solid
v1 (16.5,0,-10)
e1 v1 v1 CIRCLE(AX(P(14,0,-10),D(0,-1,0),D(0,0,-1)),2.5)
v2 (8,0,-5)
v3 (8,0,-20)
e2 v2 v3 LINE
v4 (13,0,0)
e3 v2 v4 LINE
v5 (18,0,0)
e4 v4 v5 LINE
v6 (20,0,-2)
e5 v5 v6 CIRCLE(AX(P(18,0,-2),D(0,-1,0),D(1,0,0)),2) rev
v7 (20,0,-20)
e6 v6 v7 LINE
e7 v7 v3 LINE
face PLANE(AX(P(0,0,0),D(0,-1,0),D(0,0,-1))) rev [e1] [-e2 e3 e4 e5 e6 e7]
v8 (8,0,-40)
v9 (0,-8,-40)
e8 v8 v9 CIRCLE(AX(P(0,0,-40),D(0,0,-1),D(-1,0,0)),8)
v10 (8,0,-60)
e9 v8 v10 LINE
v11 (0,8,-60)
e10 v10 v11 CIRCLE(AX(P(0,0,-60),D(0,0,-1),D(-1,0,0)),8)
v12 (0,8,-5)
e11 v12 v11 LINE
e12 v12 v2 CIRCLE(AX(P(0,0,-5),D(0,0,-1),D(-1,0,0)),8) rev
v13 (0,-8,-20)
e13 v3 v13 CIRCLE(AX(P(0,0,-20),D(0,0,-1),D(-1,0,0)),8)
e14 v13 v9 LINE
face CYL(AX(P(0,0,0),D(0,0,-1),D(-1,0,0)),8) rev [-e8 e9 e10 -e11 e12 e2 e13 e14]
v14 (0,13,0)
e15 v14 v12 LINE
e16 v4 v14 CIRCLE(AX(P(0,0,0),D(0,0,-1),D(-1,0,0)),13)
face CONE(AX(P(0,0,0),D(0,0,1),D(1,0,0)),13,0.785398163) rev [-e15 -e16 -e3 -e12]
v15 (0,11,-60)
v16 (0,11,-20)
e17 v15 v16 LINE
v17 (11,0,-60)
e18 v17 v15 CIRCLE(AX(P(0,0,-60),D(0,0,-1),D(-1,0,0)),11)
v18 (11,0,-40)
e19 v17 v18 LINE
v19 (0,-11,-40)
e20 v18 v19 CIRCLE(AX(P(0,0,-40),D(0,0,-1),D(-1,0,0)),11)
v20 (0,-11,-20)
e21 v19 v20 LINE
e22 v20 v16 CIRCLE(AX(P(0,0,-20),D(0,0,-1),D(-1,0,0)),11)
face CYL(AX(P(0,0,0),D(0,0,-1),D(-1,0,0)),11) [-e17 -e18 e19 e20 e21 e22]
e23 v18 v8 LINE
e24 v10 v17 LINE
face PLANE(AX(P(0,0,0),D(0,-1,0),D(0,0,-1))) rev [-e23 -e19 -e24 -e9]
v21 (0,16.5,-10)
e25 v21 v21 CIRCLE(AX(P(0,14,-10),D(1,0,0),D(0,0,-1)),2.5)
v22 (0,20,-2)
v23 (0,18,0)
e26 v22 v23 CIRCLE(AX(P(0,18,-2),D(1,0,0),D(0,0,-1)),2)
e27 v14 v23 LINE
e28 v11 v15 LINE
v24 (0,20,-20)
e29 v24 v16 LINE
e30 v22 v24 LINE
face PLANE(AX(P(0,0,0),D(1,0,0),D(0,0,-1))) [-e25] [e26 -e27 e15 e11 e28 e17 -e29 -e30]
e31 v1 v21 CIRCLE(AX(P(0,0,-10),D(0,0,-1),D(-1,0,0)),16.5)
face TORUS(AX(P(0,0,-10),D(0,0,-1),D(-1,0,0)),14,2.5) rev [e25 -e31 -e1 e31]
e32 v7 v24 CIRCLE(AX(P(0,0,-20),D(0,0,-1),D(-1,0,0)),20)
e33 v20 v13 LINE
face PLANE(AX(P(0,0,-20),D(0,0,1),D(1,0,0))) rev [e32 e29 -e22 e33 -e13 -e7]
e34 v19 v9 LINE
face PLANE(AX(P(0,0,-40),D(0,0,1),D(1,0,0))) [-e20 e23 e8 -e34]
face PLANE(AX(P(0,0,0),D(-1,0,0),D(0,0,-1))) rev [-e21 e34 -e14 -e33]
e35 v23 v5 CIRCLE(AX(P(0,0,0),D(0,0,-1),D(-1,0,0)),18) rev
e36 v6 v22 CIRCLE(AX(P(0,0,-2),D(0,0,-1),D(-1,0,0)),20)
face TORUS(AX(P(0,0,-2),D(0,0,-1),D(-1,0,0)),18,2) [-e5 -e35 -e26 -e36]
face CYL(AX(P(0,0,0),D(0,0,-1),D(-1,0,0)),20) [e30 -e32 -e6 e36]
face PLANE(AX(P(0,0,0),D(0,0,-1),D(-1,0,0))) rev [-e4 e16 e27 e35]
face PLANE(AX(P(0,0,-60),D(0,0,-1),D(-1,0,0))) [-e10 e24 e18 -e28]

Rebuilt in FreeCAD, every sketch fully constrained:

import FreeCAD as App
import Part
import Sketcher


def edges_at(feature, points):
    """Names of the edges that pass closest to the given points."""
    edges = feature.Shape.Edges
    near = lambda p: min(range(len(edges)), key=lambda i: edges[i].distToShape(Part.Vertex(*p))[0])
    return sorted({f"Edge{near(p) + 1}" for p in points})


def add_polygon(sketch, points):
    """Adds a closed chain of lines whose ends are joined by coincident constraints."""
    first, n = sketch.GeometryCount, len(points)
    for a, b in zip(points, points[1:] + points[:1]):
        sketch.addGeometry(Part.LineSegment(App.Vector(*a, 0), App.Vector(*b, 0)), False)
    for i in range(n):
        sketch.addConstraint(Sketcher.Constraint("Coincident", first + i, 2, first + (i + 1) % n, 1))

doc = App.newDocument("Part")
body = doc.addObject("PartDesign::Body", "Body")
body.AllowCompound = True

# Sketch on YZ plane
sketch1 = body.newObject("Sketcher::SketchObject", "Sketch")
sketch1.AttachmentSupport = (doc.getObject("YZ_Plane"), [""])
sketch1.MapMode = "FlatFace"
add_polygon(sketch1, [(8, -20), (20, -20), (20, 0), (8, 0)])  # lines 0-3
sketch1.addGeometry(Part.Circle(App.Vector(14, -10, 0), App.Vector(0, 0, 1), 2.5), False)  # 4
add_polygon(sketch1, [(11, -40), (8, -40), (8, -60), (11, -60)])  # lines 5-8
sketch1.addConstraint(Sketcher.Constraint("Horizontal", 0))
sketch1.addConstraint(Sketcher.Constraint("Vertical", 1))
sketch1.addConstraint(Sketcher.Constraint("Horizontal", 2))
sketch1.addConstraint(Sketcher.Constraint("Vertical", 3))
sketch1.addConstraint(Sketcher.Constraint("Horizontal", 5))
sketch1.addConstraint(Sketcher.Constraint("Vertical", 6))
sketch1.addConstraint(Sketcher.Constraint("Horizontal", 7))
sketch1.addConstraint(Sketcher.Constraint("Vertical", 8))
sketch1.addConstraint(Sketcher.Constraint("PointOnObject", 1, 2, -1))
sketch1.addConstraint(Sketcher.Constraint("Vertical", 3, 2, 5, 2))
sketch1.addConstraint(Sketcher.Constraint("Equal", 3, 6))
sketch1.addConstraint(Sketcher.Constraint("Diameter", 4, 5.0))
sketch1.addConstraint(Sketcher.Constraint("DistanceX", 0, 1, 0, 2, 12.0))
sketch1.addConstraint(Sketcher.Constraint("DistanceX", 5, 2, 5, 1, 3.0))
sketch1.addConstraint(Sketcher.Constraint("DistanceY", 1, 1, 1, 2, 20.0))
sketch1.addConstraint(Sketcher.Constraint("DistanceX", -1, 1, 4, 3, 14.0))
sketch1.addConstraint(Sketcher.Constraint("DistanceY", 4, 3, -1, 1, 10.0))
sketch1.addConstraint(Sketcher.Constraint("DistanceX", -1, 1, 0, 2, 20.0))
sketch1.addConstraint(Sketcher.Constraint("DistanceY", 5, 2, -1, 1, 40.0))
revolution = body.newObject("PartDesign::Revolution", "Revolution")
revolution.Profile = sketch1
revolution.ReferenceAxis = (sketch1, ["V_Axis"])
revolution.Angle = 270

# Sketch on YZ plane
sketch2 = body.newObject("Sketcher::SketchObject", "Sketch001")
sketch2.AttachmentSupport = (doc.getObject("YZ_Plane"), [""])
sketch2.MapMode = "FlatFace"
add_polygon(sketch2, [(11, -20), (8, -20), (8, -60), (11, -60)])  # lines 0-3
sketch2.addConstraint(Sketcher.Constraint("Horizontal", 0))
sketch2.addConstraint(Sketcher.Constraint("Vertical", 1))
sketch2.addConstraint(Sketcher.Constraint("Horizontal", 2))
sketch2.addConstraint(Sketcher.Constraint("Vertical", 3))
sketch2.addConstraint(Sketcher.Constraint("DistanceX", 0, 2, 0, 1, 3.0))
sketch2.addConstraint(Sketcher.Constraint("DistanceY", 1, 2, 1, 1, 40.0))
sketch2.addConstraint(Sketcher.Constraint("DistanceX", -1, 1, 0, 2, 8.0))
sketch2.addConstraint(Sketcher.Constraint("DistanceY", 0, 2, -1, 1, 20.0))
revolution2 = body.newObject("PartDesign::Revolution", "Revolution001")
revolution2.Profile = sketch2
revolution2.ReferenceAxis = (sketch2, ["V_Axis"])
revolution2.Angle = 180
doc.recompute()

chamfer = body.newObject("PartDesign::Chamfer", "Chamfer")
chamfer.Base = (revolution2, edges_at(revolution2, [(-5.657, -5.657, 0)]))
chamfer.Size = 5
doc.recompute()

fillet = body.newObject("PartDesign::Fillet", "Fillet")
fillet.Base = (chamfer, edges_at(chamfer, [(-14.142, -14.142, 0)]))
fillet.Radius = 2

doc.recompute()
